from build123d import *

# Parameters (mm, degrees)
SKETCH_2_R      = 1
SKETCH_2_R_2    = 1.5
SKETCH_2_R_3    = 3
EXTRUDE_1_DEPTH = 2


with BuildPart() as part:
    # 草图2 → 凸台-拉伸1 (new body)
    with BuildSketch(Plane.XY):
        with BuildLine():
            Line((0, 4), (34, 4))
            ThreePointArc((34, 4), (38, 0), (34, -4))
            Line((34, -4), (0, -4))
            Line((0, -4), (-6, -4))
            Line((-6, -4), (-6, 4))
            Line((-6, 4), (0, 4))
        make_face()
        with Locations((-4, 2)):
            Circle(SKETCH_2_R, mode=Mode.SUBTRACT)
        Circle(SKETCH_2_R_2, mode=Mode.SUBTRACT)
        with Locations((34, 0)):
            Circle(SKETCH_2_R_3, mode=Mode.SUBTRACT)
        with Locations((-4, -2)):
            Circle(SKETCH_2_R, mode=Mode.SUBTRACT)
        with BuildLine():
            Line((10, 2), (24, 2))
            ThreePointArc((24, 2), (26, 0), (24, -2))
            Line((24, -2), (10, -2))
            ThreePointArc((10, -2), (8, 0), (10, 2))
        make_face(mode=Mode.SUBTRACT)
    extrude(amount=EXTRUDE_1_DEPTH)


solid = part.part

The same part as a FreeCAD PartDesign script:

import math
import FreeCAD as App
import Part
import Sketcher

V = App.Vector

doc = App.newDocument("Part")
body = doc.addObject("PartDesign::Body", "Body")

# Sketch on XY plane
sketch1 = body.newObject("Sketcher::SketchObject", "Sketch")
sketch1.AttachmentSupport = (doc.getObject("XY_Plane"), [""])
sketch1.MapMode = "FlatFace"
sketch1.addGeometry([
    Part.ArcOfCircle(Part.Circle(V(34, 0, 0), V(0, 0, 1), 4), math.radians(-90), math.radians(90)),  # 0
    Part.LineSegment(V(34, 4, 0), V(-6, 4, 0)),  # 1
    Part.LineSegment(V(-6, 4, 0), V(-6, -4, 0)),  # 2
    Part.LineSegment(V(-6, -4, 0), V(34, -4, 0)),  # 3
    Part.Circle(V(-4, -2, 0), V(0, 0, 1), 1),  # 4
    Part.Circle(V(34, 0, 0), V(0, 0, 1), 3),  # 5
    Part.LineSegment(V(10, 2, 0), V(24, 2, 0)),  # 6
    Part.ArcOfCircle(Part.Circle(V(24, 0, 0), V(0, 0, 1), 2), math.radians(-90), math.radians(90)),  # 7
    Part.LineSegment(V(24, -2, 0), V(10, -2, 0)),  # 8
    Part.ArcOfCircle(Part.Circle(V(10, 0, 0), V(0, 0, 1), 2), math.radians(90), math.radians(270)),  # 9
    Part.Circle(V(0, 0, 0), V(0, 0, 1), 1.5),  # 10
    Part.Circle(V(-4, 2, 0), V(0, 0, 1), 1),  # 11
], False)
sketch1.addConstraint([
    Sketcher.Constraint("Tangent", 0, 2, 1, 1),
    Sketcher.Constraint("Coincident", 1, 2, 2, 1),
    Sketcher.Constraint("Coincident", 2, 2, 3, 1),
    Sketcher.Constraint("Tangent", 3, 2, 0, 1),
    Sketcher.Constraint("Tangent", 6, 2, 7, 2),
    Sketcher.Constraint("Tangent", 7, 1, 8, 1),
    Sketcher.Constraint("Tangent", 8, 2, 9, 2),
    Sketcher.Constraint("Tangent", 9, 1, 6, 1),
    Sketcher.Constraint("Horizontal", 1),
    Sketcher.Constraint("Vertical", 2),
    Sketcher.Constraint("Horizontal", 3),
    Sketcher.Constraint("Horizontal", 6),
    Sketcher.Constraint("Horizontal", 8),
    Sketcher.Constraint("Coincident", 10, 3, -1, 1),
    Sketcher.Constraint("Coincident", 5, 3, 0, 3),
    Sketcher.Constraint("Equal", 4, 11),
    Sketcher.Constraint("Symmetric", 4, 3, 11, 3, -1),
    Sketcher.Constraint("PointOnObject", 0, 3, -1),
    Sketcher.Constraint("PointOnObject", 7, 3, -1),
    Sketcher.Constraint("Horizontal", 11, 3, 6, 2),
    Sketcher.Constraint("Diameter", 4, 2.0),
    Sketcher.Constraint("Diameter", 5, 6.0),
    Sketcher.Constraint("Diameter", 10, 3.0),
    Sketcher.Constraint("Radius", 0, 4.0),
    Sketcher.Constraint("Radius", 7, 2.0),
    Sketcher.Constraint("DistanceX", 1, 2, 1, 1, 40.0),
    Sketcher.Constraint("DistanceX", 6, 1, 6, 2, 14.0),
    Sketcher.Constraint("DistanceX", -1, 1, 0, 3, 34.0),
    Sketcher.Constraint("DistanceX", 4, 3, -1, 1, 4.0),
    Sketcher.Constraint("DistanceX", -1, 1, 7, 3, 24.0),
])
pad1 = body.newObject("PartDesign::Pad", "Pad")
pad1.Profile = sketch1
pad1.Length = 2

doc.recompute()
